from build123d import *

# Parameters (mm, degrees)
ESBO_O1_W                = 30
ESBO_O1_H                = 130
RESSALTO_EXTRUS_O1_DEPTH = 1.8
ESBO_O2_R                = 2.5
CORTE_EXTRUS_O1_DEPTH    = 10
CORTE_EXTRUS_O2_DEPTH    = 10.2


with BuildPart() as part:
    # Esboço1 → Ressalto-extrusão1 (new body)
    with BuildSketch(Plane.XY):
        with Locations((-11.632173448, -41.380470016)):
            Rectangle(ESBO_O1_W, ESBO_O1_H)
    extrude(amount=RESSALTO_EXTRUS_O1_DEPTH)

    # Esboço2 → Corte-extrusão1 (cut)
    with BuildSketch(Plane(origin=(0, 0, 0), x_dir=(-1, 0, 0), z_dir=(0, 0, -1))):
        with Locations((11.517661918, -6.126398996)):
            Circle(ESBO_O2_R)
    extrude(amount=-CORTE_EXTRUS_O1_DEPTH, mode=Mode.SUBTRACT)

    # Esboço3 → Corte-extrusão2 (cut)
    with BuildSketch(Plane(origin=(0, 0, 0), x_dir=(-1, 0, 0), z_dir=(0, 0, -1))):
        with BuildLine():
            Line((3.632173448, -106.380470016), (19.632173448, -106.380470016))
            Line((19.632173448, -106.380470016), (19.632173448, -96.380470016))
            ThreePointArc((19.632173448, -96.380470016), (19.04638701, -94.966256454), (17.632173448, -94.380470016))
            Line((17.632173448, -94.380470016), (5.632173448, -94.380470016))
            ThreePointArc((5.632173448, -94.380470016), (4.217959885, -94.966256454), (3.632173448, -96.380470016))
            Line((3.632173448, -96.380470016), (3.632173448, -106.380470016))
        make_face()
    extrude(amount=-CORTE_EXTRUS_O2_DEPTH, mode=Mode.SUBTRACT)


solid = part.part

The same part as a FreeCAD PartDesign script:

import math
import FreeCAD as App
import Part
import Sketcher


def add_polygon(sketch, points):
    """Adds a closed chain of lines whose ends are joined by coincident constraints."""
    first, n = sketch.GeometryCount, len(points)
    for a, b in zip(points, points[1:] + points[:1]):
        sketch.addGeometry(Part.LineSegment(App.Vector(*a, 0), App.Vector(*b, 0)), False)
    for i in range(n):
        sketch.addConstraint(Sketcher.Constraint("Coincident", first + i, 2, first + (i + 1) % n, 1))

doc = App.newDocument("Part")
body = doc.addObject("PartDesign::Body", "Body")

sketch1 = body.newObject("Sketcher::SketchObject", "Sketch")
sketch1.AttachmentSupport = (doc.getObject("XY_Plane"), [""])
sketch1.MapMode = "FlatFace"
add_polygon(sketch1, [(-26.632173, 23.61953), (-26.632173, -106.38047), (3.367827, -106.38047), (3.367827, 23.61953)])
sketch1.addConstraint(Sketcher.Constraint("Vertical", 0))
sketch1.addConstraint(Sketcher.Constraint("Horizontal", 1))
sketch1.addConstraint(Sketcher.Constraint("Vertical", 2))
sketch1.addConstraint(Sketcher.Constraint("Horizontal", 3))
sketch1.addConstraint(Sketcher.Constraint("DistanceX", 1, 1, 1, 2, 30.0))
sketch1.addConstraint(Sketcher.Constraint("DistanceY", 0, 2, 0, 1, 130.0))
sketch1.addConstraint(Sketcher.Constraint("DistanceY", 0, 2, -1, 1, 106.38047))
sketch1.addConstraint(Sketcher.Constraint("DistanceX", 0, 2, -1, 1, 26.632173))
pad1 = body.newObject("PartDesign::Pad", "Pad")
pad1.Profile = sketch1
pad1.Length = 1.8

sketch2 = body.newObject("Sketcher::SketchObject", "Sketch001")
sketch2.AttachmentSupport = (doc.getObject("XY_Plane"), [""])
sketch2.MapMode = "FlatFace"
sketch2.addGeometry(Part.Circle(App.Vector(-11.517662, -6.126399, 0), App.Vector(0, 0, 1), 2.5), False)
sketch2.addConstraint(Sketcher.Constraint("Diameter", 0, 5.0))
sketch2.addConstraint(Sketcher.Constraint("DistanceY", 0, 3, -1, 1, 6.126399))
sketch2.addConstraint(Sketcher.Constraint("DistanceX", 0, 3, -1, 1, 11.517662))
pocket1 = body.newObject("PartDesign::Pocket", "Pocket")
pocket1.Profile = sketch2
pocket1.Length = 10
pocket1.Reversed = True

sketch3 = body.newObject("Sketcher::SketchObject", "Sketch002")
sketch3.AttachmentSupport = (doc.getObject("XY_Plane"), [""])
sketch3.MapMode = "FlatFace"
sketch3.addGeometry(Part.LineSegment(App.Vector(-3.632173, -106.38047, 0), App.Vector(-19.632173, -106.38047, 0)), False)
sketch3.addGeometry(Part.LineSegment(App.Vector(-19.632173, -106.38047, 0), App.Vector(-19.632173, -96.38047, 0)), False)
sketch3.addGeometry(Part.ArcOfCircle(Part.Circle(App.Vector(-17.632173, -96.38047, 0), App.Vector(0, 0, 1), 2), math.radians(90), math.radians(180)), False)
sketch3.addGeometry(Part.LineSegment(App.Vector(-17.632173, -94.38047, 0), App.Vector(-5.632173, -94.38047, 0)), False)
sketch3.addGeometry(Part.ArcOfCircle(Part.Circle(App.Vector(-5.632173, -96.38047, 0), App.Vector(0, 0, 1), 2), math.radians(0), math.radians(90)), False)
sketch3.addGeometry(Part.LineSegment(App.Vector(-3.632173, -96.38047, 0), App.Vector(-3.632173, -106.38047, 0)), False)
sketch3.addConstraint(Sketcher.Constraint("Coincident", 0, 2, 1, 1))
sketch3.addConstraint(Sketcher.Constraint("Tangent", 1, 2, 2, 2))
sketch3.addConstraint(Sketcher.Constraint("Tangent", 2, 1, 3, 1))
sketch3.addConstraint(Sketcher.Constraint("Tangent", 3, 2, 4, 2))
sketch3.addConstraint(Sketcher.Constraint("Tangent", 4, 1, 5, 1))
sketch3.addConstraint(Sketcher.Constraint("Coincident", 5, 2, 0, 1))
sketch3.addConstraint(Sketcher.Constraint("Horizontal", 0))
sketch3.addConstraint(Sketcher.Constraint("Vertical", 1))
sketch3.addConstraint(Sketcher.Constraint("Horizontal", 3))
sketch3.addConstraint(Sketcher.Constraint("Vertical", 5))
sketch3.addConstraint(Sketcher.Constraint("Equal", 2, 4))
sketch3.addConstraint(Sketcher.Constraint("Radius", 2, 2.0))
sketch3.addConstraint(Sketcher.Constraint("DistanceX", 0, 2, 0, 1, 16.0))
sketch3.addConstraint(Sketcher.Constraint("DistanceY", 1, 1, 1, 2, 10.0))
sketch3.addConstraint(Sketcher.Constraint("DistanceY", 2, 3, -1, 1, 96.38047))
sketch3.addConstraint(Sketcher.Constraint("DistanceX", 2, 3, -1, 1, 17.632173))
pocket2 = body.newObject("PartDesign::Pocket", "Pocket001")
pocket2.Profile = sketch3
pocket2.Length = 10.2
pocket2.Reversed = True

doc.recompute()
